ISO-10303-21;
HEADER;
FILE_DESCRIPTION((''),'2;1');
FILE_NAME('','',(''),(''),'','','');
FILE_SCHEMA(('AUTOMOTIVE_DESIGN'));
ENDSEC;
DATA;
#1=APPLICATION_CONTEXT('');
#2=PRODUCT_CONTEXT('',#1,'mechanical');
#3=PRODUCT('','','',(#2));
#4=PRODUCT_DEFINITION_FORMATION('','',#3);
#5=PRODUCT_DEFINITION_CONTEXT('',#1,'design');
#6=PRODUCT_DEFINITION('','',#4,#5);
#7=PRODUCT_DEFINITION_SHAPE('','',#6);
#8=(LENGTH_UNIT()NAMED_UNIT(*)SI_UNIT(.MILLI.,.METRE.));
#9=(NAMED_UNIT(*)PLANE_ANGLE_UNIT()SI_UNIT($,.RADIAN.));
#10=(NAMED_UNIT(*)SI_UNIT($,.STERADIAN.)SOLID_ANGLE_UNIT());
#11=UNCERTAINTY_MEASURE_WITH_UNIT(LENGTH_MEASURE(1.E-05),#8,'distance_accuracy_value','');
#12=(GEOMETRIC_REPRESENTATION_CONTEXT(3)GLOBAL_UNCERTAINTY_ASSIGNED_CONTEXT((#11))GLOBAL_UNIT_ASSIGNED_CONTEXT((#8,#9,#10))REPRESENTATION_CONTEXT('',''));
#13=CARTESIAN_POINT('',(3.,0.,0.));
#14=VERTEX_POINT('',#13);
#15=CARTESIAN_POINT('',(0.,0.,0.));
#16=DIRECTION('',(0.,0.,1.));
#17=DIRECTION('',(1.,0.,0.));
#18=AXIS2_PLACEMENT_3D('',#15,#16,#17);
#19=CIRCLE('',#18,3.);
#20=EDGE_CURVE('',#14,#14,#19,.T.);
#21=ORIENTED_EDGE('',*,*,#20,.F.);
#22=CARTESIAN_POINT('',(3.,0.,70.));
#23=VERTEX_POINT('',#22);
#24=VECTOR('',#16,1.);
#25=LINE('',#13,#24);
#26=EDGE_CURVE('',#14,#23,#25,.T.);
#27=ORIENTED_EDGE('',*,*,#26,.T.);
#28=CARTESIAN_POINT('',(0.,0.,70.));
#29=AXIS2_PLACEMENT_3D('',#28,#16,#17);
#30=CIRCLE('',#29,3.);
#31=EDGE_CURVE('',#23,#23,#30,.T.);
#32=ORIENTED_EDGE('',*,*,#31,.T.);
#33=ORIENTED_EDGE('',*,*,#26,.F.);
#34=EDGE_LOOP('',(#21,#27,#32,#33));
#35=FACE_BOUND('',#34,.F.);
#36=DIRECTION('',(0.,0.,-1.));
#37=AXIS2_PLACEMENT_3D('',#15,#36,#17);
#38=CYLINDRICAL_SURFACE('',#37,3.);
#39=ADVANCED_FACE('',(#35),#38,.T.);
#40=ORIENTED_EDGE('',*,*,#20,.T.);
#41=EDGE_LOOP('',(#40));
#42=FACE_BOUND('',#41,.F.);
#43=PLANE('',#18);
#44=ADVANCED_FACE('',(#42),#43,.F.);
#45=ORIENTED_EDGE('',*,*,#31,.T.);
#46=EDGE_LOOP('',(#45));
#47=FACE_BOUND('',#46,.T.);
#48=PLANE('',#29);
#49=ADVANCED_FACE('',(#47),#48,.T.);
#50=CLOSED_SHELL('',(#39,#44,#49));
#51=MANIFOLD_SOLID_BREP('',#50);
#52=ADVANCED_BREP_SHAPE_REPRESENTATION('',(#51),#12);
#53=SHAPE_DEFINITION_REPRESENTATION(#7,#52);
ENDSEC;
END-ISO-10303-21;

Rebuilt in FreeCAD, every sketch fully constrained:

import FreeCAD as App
import Part
import Sketcher
Q = App.Units.Quantity

doc = App.newDocument("Part")
params = doc.addObject("Spreadsheet::Sheet", "Params")
for row, (alias, value) in enumerate([
    ("sketch1_diameter", "6 mm"),
    ("pad1_length", "70 mm"),
], start=1):
    params.set(f"A{row}", alias)
    params.set(f"B{row}", "=" + value)
    params.setAlias(f"B{row}", alias)

body = doc.addObject("PartDesign::Body", "Body")

sketch1 = body.newObject("Sketcher::SketchObject", "Sketch")
sketch1.AttachmentSupport = (doc.getObject("XY_Plane"), [""])
sketch1.MapMode = "FlatFace"
sketch1.addGeometry(Part.Circle(App.Vector(0, 0, 0), App.Vector(0, 0, 1), 3), False)
sketch1.addConstraint([
    Sketcher.Constraint("Coincident", 0, 3, -1, 1),
    Sketcher.Constraint("Diameter", 0, Q("6 mm")),
])
sketch1.setExpression("Constraints[1]", "Params.sketch1_diameter")
pad1 = body.newObject("PartDesign::Pad", "Pad")
pad1.Profile = sketch1
pad1.setExpression("Length", "Params.pad1_length")

doc.recompute()
